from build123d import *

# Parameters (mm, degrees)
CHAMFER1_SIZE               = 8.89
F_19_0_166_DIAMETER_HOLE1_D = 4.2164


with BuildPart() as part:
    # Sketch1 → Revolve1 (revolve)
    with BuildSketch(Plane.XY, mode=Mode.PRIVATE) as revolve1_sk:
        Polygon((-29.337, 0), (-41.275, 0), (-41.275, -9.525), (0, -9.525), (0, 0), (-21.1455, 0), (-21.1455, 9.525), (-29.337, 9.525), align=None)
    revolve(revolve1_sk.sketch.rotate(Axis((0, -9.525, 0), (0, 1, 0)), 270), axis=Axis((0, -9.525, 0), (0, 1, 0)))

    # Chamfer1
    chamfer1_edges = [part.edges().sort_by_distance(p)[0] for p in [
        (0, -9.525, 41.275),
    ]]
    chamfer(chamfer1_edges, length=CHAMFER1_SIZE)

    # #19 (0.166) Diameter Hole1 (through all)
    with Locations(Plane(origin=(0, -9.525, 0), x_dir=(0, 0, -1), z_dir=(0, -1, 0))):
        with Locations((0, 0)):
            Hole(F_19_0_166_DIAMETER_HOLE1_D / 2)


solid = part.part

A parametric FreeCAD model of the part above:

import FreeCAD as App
import Part
import Sketcher

V = App.Vector
Q = App.Units.Quantity


def edges_at(feature, points):
    """Names of the edges that pass closest to the given points."""
    edges = feature.Shape.Edges
    near = lambda p: min(range(len(edges)), key=lambda i: edges[i].distToShape(Part.Vertex(*p))[0])
    return sorted({f"Edge{near(p) + 1}" for p in points})


def add_polygon(sketch, points):
    """Adds a closed chain of lines whose ends are joined by coincident constraints."""
    first, n = sketch.GeometryCount, len(points)
    for a, b in zip(points, points[1:] + points[:1]):
        sketch.addGeometry(Part.LineSegment(App.Vector(*a, 0), App.Vector(*b, 0)), False)
    for i in range(n):
        sketch.addConstraint(Sketcher.Constraint("Coincident", first + i, 2, first + (i + 1) % n, 1))

doc = App.newDocument("Part")
params = doc.addObject("Spreadsheet::Sheet", "Params")
for row, (alias, value) in enumerate([
    ("sketch1_width", "0.47 in"),
    ("sketch1_width2", "1.625 in"),
    ("sketch1_height", "0.375 in"),
    ("revolution_angle", "360 deg"),
    ("chamfer_size", "0.35 in"),
    ("sketch2_diameter", "0.166 in"),
    ("hole_diameter", "0.166 in"),
], start=1):
    params.set(f"A{row}", alias)
    params.set(f"B{row}", "=" + value)
    params.setAlias(f"B{row}", alias)

body = doc.addObject("PartDesign::Body", "Body")

sketch1 = doc.addObject("Sketcher::SketchObject", "Sketch")
body.addObject(sketch1)
sketch1.AttachmentSupport = (doc.XY_Plane, [""])
sketch1.MapMode = "FlatFace"
add_polygon(sketch1, [(-29.337, 0), (-41.275, 0), (-41.275, -9.525), (0, -9.525), (0, 0), (-21.1455, 0), (-21.1455, 9.525), (-29.337, 9.525)])
sketch1.addConstraint(Sketcher.Constraint("Horizontal", 0))
sketch1.addConstraint(Sketcher.Constraint("Vertical", 1))
sketch1.addConstraint(Sketcher.Constraint("Horizontal", 2))
sketch1.addConstraint(Sketcher.Constraint("Vertical", 3))
sketch1.addConstraint(Sketcher.Constraint("Horizontal", 4))
sketch1.addConstraint(Sketcher.Constraint("Vertical", 5))
sketch1.addConstraint(Sketcher.Constraint("Horizontal", 6))
sketch1.addConstraint(Sketcher.Constraint("Vertical", 7))
sketch1.addConstraint(Sketcher.Constraint("Coincident", 3, 2, -1, 1))
sketch1.addConstraint(Sketcher.Constraint("PointOnObject", 0, 2, -1))
sketch1.addConstraint(Sketcher.Constraint("Equal", 3, 5))
sketch1.addConstraint(Sketcher.Constraint("DistanceX", 0, 2, 0, 1, Q("0.47 in")))
sketch1.addConstraint(Sketcher.Constraint("DistanceX", 2, 1, 2, 2, Q("1.625 in")))
sketch1.addConstraint(Sketcher.Constraint("DistanceY", 1, 2, 1, 1, Q("0.375 in")))
sketch1.addConstraint(Sketcher.Constraint("DistanceX", 4, 2, 4, 1, Q("0.8325 in")))
sketch1.setExpression("Constraints[19]", "Params.sketch1_width")
sketch1.setExpression("Constraints[20]", "Params.sketch1_width2")
sketch1.setExpression("Constraints[21]", "Params.sketch1_height")
revolution = doc.addObject("PartDesign::Revolution", "Revolution")
body.addObject(revolution)
revolution.Profile = sketch1
revolution.ReferenceAxis = (sketch1, ["V_Axis"])
revolution.setExpression("Angle", "Params.revolution_angle")
doc.recompute()

chamfer = doc.addObject("PartDesign::Chamfer", "Chamfer")
body.addObject(chamfer)
chamfer.Base = (revolution, edges_at(revolution, [(0, -9.525, 41.275)]))
chamfer.setExpression("Size", "Params.chamfer_size")

sketch2 = doc.addObject("Sketcher::SketchObject", "Sketch001")
body.addObject(sketch2)
sketch2.AttachmentSupport = (doc.XZ_Plane, [""])
sketch2.MapMode = "FlatFace"
sketch2.AttachmentOffset = App.Placement(V(0, 0, 0.375 * 25.4), App.Rotation())
sketch2.addGeometry(Part.Circle(V(0, 0, 0), V(0, 0, 1), 2.1082), False)
sketch2.addConstraint(Sketcher.Constraint("Coincident", 0, 3, -1, 1))
sketch2.addConstraint(Sketcher.Constraint("Diameter", 0, Q("0.166 in")))
sketch2.setExpression("Constraints[1]", "Params.sketch2_diameter")
doc.recompute()
hole = doc.addObject("PartDesign::Hole", "Hole")
body.addObject(hole)
hole.Profile = sketch2
hole.ThreadType = "None"
hole.setExpression("Diameter", "Params.hole_diameter")
hole.DepthType = "ThroughAll"

doc.recompute()
